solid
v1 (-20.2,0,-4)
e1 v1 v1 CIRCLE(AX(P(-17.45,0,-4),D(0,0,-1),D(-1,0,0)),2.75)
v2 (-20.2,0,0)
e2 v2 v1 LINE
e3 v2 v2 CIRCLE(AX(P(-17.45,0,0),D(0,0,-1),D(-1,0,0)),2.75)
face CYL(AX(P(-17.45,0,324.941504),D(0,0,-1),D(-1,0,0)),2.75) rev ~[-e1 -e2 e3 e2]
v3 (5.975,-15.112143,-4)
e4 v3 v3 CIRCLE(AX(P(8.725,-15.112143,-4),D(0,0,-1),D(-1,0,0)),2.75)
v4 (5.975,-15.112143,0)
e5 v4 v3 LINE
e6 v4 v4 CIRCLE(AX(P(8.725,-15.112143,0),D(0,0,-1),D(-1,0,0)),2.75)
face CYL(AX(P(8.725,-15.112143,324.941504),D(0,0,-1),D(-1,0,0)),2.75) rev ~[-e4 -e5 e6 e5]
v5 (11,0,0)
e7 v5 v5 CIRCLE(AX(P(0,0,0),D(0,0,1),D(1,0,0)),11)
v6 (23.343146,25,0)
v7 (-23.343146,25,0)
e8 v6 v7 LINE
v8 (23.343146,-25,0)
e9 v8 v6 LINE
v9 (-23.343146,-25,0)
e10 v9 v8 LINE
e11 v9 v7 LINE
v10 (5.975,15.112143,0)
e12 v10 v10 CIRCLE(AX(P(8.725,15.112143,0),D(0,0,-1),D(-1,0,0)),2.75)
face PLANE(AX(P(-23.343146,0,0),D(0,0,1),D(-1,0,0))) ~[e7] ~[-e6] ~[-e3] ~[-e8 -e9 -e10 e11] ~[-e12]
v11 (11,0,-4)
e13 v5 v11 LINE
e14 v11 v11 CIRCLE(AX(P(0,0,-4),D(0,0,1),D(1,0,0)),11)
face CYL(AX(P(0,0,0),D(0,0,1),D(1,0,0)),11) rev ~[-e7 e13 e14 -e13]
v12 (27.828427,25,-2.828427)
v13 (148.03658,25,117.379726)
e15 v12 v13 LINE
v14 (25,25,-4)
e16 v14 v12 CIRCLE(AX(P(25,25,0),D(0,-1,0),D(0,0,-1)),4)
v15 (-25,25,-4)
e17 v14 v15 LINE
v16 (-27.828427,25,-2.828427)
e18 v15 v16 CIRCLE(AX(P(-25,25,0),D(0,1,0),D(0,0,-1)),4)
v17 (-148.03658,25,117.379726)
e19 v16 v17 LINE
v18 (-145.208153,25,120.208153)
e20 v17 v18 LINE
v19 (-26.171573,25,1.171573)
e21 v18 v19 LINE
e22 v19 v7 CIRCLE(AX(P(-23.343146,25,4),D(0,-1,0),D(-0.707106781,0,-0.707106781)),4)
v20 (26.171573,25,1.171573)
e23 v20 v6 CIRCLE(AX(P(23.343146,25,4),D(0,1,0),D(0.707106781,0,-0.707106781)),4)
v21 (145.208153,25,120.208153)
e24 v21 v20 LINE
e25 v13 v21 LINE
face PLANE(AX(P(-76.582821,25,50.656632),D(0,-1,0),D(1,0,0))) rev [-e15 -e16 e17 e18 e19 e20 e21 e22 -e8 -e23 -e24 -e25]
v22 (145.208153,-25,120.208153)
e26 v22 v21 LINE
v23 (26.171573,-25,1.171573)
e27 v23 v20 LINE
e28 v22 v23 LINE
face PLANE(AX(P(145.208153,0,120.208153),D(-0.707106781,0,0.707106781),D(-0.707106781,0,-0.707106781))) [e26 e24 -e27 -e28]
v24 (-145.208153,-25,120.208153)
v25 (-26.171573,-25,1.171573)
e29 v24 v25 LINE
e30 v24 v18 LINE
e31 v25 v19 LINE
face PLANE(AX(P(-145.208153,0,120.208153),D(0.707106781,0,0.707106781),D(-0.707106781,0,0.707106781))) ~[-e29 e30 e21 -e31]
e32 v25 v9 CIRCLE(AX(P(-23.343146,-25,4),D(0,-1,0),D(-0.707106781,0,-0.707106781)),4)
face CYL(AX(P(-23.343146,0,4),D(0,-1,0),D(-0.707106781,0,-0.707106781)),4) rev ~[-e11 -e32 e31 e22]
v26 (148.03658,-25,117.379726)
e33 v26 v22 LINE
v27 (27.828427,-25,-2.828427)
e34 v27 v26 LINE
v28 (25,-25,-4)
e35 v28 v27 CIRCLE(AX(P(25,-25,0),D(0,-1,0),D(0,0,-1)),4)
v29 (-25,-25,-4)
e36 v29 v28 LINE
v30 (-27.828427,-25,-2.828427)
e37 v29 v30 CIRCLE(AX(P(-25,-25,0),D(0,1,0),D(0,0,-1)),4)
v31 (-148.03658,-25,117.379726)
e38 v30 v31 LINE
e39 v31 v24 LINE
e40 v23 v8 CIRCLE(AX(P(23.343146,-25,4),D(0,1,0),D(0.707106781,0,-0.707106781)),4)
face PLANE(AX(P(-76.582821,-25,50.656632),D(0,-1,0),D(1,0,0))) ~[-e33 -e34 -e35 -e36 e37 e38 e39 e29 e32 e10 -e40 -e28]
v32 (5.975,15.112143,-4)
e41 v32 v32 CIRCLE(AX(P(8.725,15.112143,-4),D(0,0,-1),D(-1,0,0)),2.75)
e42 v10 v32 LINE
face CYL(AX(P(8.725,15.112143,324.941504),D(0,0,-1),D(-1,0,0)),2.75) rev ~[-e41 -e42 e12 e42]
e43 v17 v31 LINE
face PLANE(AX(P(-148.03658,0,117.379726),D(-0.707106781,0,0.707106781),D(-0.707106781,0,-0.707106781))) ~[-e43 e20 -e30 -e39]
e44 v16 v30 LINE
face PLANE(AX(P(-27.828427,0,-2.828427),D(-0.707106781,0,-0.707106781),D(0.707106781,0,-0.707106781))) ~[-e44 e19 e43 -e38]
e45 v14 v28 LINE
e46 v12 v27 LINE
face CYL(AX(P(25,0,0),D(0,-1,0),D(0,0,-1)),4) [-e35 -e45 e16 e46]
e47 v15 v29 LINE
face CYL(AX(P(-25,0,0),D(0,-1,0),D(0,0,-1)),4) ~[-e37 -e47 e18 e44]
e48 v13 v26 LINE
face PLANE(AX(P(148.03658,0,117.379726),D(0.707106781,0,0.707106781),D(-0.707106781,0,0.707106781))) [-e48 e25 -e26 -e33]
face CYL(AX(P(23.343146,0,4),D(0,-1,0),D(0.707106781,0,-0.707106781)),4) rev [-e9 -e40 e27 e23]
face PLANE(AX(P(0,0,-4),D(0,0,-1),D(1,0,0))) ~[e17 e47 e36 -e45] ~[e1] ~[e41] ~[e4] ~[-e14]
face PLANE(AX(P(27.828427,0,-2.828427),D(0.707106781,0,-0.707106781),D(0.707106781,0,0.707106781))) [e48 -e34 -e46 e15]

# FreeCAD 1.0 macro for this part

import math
import FreeCAD as App
import Part
import Sketcher
Q = App.Units.Quantity

doc = App.newDocument("Part")
body = doc.addObject("PartDesign::Body", "Body")

sketch1 = body.newObject("Sketcher::SketchObject", "Sketch")
sketch1.AttachmentSupport = (doc.getObject("XZ_Plane"), [""])
sketch1.MapMode = "FlatFace"
sketch1.addGeometry([
    Part.LineSegment(App.Vector(23.3, 0, 0), App.Vector(0, 0, 0)),
    Part.LineSegment(App.Vector(0, 0, 0), App.Vector(0, -4, 0)),
    Part.LineSegment(App.Vector(0, -4, 0), App.Vector(25, -4, 0)),
    Part.ArcOfCircle(Part.Circle(App.Vector(25, 0, 0), App.Vector(0, 0, 1), 4), math.radians(-90), math.radians(-45)),
    Part.LineSegment(App.Vector(27.8, -2.8, 0), App.Vector(148, 117.4, 0)),
    Part.LineSegment(App.Vector(148, 117.4, 0), App.Vector(145.2, 120.2, 0)),
    Part.LineSegment(App.Vector(145.2, 120.2, 0), App.Vector(26.2, 1.2, 0)),
    Part.ArcOfCircle(Part.Circle(App.Vector(23.3, 4, 0), App.Vector(0, 0, 1), 4), math.radians(-90), math.radians(-45)),
], False)
sketch1.addConstraint([
    Sketcher.Constraint("Coincident", 0, 2, 1, 1),
    Sketcher.Constraint("Coincident", 1, 2, 2, 1),
    Sketcher.Constraint("Tangent", 2, 2, 3, 1),
    Sketcher.Constraint("Tangent", 3, 2, 4, 1),
    Sketcher.Constraint("Coincident", 4, 2, 5, 1),
    Sketcher.Constraint("Coincident", 5, 2, 6, 1),
    Sketcher.Constraint("Tangent", 6, 2, 7, 2),
    Sketcher.Constraint("Tangent", 7, 1, 0, 1),
    Sketcher.Constraint("Horizontal", 0),
    Sketcher.Constraint("Vertical", 1),
    Sketcher.Constraint("Horizontal", 2),
    Sketcher.Constraint("Coincident", 0, 2, -1, 1),
    Sketcher.Constraint("Equal", 3, 7),
    Sketcher.Constraint("PointOnObject", 3, 3, -1),
    Sketcher.Constraint("Perpendicular", 4, 5),
    Sketcher.Constraint("Perpendicular", 5, 6),
    Sketcher.Constraint("Radius", 3, 4.0),
    Sketcher.Constraint("DistanceX", 2, 1, 2, 2, 25.0),
    Sketcher.Constraint("Angle", 4, Q("45 deg")),
    Sketcher.Constraint("Distance", 4, 170.0),
    Sketcher.Constraint("Distance", 5, 4.0),
])
pad1 = body.newObject("PartDesign::Pad", "Pad")
pad1.Profile = sketch1
pad1.Length = 50
pad1.Midplane = True
body2 = doc.addObject("PartDesign::Body", "Body001")
doc.recompute()

body2.BaseFeature = body
doc.recompute()

mirroring = doc.addObject("Part::Mirroring", "Mirroring")
mirroring.Source = body
mirroring.Base = App.Vector(0, 0, 0)
mirroring.Normal = App.Vector(1, 0, 0)
body3 = doc.addObject("PartDesign::Body", "Body002")
body3.BaseFeature = mirroring
boolean = body2.newObject("PartDesign::Boolean", "Boolean")
boolean.Type = "Fuse"
boolean.addObjects([body3])
doc.recompute()

sketch2 = body2.newObject("Sketcher::SketchObject", "Sketch001")
sketch2.AttachmentSupport = (doc.getObject("XY_Plane001"), [""])
sketch2.MapMode = "FlatFace"
sketch2.addGeometry([
    Part.Circle(App.Vector(-17.4, 0, 0), App.Vector(0, 0, 1), 2.8),
    Part.Circle(App.Vector(8.7, -15.1, 0), App.Vector(0, 0, 1), 2.8),
    Part.Circle(App.Vector(8.7, 15.1, 0), App.Vector(0, 0, 1), 2.8),
], False)
sketch2.addConstraint([
    Sketcher.Constraint("Equal", 0, 1),
    Sketcher.Constraint("Equal", 1, 2),
    Sketcher.Constraint("Symmetric", 1, 3, 2, 3, -1),
    Sketcher.Constraint("PointOnObject", 0, 3, -1),
    Sketcher.Constraint("Diameter", 0, 5.5),
    Sketcher.Constraint("DistanceX", 0, 3, -1, 1, 17.45),
    Sketcher.Constraint("DistanceX", -1, 1, 1, 3, 8.725),
    Sketcher.Constraint("DistanceY", 1, 3, -1, 1, 15.112143),
])
doc.recompute()
hole = body2.newObject("PartDesign::Hole", "Hole")
hole.Profile = sketch2
hole.ThreadType = "None"
hole.Diameter = 5.5
hole.DepthType = "ThroughAll"

sketch3 = body2.newObject("Sketcher::SketchObject", "Sketch002")
sketch3.AttachmentSupport = (doc.getObject("XY_Plane001"), [""])
sketch3.MapMode = "FlatFace"
sketch3.addGeometry(Part.Circle(App.Vector(0, 0, 0), App.Vector(0, 0, 1), 11), False)
sketch3.addConstraint([
    Sketcher.Constraint("Coincident", 0, 3, -1, 1),
    Sketcher.Constraint("Diameter", 0, 22.0),
])
pocket1 = body2.newObject("PartDesign::Pocket", "Pocket")
pocket1.Profile = sketch3
pocket1.Type = "ThroughAll"
mirroring.Visibility = False

doc.recompute()
